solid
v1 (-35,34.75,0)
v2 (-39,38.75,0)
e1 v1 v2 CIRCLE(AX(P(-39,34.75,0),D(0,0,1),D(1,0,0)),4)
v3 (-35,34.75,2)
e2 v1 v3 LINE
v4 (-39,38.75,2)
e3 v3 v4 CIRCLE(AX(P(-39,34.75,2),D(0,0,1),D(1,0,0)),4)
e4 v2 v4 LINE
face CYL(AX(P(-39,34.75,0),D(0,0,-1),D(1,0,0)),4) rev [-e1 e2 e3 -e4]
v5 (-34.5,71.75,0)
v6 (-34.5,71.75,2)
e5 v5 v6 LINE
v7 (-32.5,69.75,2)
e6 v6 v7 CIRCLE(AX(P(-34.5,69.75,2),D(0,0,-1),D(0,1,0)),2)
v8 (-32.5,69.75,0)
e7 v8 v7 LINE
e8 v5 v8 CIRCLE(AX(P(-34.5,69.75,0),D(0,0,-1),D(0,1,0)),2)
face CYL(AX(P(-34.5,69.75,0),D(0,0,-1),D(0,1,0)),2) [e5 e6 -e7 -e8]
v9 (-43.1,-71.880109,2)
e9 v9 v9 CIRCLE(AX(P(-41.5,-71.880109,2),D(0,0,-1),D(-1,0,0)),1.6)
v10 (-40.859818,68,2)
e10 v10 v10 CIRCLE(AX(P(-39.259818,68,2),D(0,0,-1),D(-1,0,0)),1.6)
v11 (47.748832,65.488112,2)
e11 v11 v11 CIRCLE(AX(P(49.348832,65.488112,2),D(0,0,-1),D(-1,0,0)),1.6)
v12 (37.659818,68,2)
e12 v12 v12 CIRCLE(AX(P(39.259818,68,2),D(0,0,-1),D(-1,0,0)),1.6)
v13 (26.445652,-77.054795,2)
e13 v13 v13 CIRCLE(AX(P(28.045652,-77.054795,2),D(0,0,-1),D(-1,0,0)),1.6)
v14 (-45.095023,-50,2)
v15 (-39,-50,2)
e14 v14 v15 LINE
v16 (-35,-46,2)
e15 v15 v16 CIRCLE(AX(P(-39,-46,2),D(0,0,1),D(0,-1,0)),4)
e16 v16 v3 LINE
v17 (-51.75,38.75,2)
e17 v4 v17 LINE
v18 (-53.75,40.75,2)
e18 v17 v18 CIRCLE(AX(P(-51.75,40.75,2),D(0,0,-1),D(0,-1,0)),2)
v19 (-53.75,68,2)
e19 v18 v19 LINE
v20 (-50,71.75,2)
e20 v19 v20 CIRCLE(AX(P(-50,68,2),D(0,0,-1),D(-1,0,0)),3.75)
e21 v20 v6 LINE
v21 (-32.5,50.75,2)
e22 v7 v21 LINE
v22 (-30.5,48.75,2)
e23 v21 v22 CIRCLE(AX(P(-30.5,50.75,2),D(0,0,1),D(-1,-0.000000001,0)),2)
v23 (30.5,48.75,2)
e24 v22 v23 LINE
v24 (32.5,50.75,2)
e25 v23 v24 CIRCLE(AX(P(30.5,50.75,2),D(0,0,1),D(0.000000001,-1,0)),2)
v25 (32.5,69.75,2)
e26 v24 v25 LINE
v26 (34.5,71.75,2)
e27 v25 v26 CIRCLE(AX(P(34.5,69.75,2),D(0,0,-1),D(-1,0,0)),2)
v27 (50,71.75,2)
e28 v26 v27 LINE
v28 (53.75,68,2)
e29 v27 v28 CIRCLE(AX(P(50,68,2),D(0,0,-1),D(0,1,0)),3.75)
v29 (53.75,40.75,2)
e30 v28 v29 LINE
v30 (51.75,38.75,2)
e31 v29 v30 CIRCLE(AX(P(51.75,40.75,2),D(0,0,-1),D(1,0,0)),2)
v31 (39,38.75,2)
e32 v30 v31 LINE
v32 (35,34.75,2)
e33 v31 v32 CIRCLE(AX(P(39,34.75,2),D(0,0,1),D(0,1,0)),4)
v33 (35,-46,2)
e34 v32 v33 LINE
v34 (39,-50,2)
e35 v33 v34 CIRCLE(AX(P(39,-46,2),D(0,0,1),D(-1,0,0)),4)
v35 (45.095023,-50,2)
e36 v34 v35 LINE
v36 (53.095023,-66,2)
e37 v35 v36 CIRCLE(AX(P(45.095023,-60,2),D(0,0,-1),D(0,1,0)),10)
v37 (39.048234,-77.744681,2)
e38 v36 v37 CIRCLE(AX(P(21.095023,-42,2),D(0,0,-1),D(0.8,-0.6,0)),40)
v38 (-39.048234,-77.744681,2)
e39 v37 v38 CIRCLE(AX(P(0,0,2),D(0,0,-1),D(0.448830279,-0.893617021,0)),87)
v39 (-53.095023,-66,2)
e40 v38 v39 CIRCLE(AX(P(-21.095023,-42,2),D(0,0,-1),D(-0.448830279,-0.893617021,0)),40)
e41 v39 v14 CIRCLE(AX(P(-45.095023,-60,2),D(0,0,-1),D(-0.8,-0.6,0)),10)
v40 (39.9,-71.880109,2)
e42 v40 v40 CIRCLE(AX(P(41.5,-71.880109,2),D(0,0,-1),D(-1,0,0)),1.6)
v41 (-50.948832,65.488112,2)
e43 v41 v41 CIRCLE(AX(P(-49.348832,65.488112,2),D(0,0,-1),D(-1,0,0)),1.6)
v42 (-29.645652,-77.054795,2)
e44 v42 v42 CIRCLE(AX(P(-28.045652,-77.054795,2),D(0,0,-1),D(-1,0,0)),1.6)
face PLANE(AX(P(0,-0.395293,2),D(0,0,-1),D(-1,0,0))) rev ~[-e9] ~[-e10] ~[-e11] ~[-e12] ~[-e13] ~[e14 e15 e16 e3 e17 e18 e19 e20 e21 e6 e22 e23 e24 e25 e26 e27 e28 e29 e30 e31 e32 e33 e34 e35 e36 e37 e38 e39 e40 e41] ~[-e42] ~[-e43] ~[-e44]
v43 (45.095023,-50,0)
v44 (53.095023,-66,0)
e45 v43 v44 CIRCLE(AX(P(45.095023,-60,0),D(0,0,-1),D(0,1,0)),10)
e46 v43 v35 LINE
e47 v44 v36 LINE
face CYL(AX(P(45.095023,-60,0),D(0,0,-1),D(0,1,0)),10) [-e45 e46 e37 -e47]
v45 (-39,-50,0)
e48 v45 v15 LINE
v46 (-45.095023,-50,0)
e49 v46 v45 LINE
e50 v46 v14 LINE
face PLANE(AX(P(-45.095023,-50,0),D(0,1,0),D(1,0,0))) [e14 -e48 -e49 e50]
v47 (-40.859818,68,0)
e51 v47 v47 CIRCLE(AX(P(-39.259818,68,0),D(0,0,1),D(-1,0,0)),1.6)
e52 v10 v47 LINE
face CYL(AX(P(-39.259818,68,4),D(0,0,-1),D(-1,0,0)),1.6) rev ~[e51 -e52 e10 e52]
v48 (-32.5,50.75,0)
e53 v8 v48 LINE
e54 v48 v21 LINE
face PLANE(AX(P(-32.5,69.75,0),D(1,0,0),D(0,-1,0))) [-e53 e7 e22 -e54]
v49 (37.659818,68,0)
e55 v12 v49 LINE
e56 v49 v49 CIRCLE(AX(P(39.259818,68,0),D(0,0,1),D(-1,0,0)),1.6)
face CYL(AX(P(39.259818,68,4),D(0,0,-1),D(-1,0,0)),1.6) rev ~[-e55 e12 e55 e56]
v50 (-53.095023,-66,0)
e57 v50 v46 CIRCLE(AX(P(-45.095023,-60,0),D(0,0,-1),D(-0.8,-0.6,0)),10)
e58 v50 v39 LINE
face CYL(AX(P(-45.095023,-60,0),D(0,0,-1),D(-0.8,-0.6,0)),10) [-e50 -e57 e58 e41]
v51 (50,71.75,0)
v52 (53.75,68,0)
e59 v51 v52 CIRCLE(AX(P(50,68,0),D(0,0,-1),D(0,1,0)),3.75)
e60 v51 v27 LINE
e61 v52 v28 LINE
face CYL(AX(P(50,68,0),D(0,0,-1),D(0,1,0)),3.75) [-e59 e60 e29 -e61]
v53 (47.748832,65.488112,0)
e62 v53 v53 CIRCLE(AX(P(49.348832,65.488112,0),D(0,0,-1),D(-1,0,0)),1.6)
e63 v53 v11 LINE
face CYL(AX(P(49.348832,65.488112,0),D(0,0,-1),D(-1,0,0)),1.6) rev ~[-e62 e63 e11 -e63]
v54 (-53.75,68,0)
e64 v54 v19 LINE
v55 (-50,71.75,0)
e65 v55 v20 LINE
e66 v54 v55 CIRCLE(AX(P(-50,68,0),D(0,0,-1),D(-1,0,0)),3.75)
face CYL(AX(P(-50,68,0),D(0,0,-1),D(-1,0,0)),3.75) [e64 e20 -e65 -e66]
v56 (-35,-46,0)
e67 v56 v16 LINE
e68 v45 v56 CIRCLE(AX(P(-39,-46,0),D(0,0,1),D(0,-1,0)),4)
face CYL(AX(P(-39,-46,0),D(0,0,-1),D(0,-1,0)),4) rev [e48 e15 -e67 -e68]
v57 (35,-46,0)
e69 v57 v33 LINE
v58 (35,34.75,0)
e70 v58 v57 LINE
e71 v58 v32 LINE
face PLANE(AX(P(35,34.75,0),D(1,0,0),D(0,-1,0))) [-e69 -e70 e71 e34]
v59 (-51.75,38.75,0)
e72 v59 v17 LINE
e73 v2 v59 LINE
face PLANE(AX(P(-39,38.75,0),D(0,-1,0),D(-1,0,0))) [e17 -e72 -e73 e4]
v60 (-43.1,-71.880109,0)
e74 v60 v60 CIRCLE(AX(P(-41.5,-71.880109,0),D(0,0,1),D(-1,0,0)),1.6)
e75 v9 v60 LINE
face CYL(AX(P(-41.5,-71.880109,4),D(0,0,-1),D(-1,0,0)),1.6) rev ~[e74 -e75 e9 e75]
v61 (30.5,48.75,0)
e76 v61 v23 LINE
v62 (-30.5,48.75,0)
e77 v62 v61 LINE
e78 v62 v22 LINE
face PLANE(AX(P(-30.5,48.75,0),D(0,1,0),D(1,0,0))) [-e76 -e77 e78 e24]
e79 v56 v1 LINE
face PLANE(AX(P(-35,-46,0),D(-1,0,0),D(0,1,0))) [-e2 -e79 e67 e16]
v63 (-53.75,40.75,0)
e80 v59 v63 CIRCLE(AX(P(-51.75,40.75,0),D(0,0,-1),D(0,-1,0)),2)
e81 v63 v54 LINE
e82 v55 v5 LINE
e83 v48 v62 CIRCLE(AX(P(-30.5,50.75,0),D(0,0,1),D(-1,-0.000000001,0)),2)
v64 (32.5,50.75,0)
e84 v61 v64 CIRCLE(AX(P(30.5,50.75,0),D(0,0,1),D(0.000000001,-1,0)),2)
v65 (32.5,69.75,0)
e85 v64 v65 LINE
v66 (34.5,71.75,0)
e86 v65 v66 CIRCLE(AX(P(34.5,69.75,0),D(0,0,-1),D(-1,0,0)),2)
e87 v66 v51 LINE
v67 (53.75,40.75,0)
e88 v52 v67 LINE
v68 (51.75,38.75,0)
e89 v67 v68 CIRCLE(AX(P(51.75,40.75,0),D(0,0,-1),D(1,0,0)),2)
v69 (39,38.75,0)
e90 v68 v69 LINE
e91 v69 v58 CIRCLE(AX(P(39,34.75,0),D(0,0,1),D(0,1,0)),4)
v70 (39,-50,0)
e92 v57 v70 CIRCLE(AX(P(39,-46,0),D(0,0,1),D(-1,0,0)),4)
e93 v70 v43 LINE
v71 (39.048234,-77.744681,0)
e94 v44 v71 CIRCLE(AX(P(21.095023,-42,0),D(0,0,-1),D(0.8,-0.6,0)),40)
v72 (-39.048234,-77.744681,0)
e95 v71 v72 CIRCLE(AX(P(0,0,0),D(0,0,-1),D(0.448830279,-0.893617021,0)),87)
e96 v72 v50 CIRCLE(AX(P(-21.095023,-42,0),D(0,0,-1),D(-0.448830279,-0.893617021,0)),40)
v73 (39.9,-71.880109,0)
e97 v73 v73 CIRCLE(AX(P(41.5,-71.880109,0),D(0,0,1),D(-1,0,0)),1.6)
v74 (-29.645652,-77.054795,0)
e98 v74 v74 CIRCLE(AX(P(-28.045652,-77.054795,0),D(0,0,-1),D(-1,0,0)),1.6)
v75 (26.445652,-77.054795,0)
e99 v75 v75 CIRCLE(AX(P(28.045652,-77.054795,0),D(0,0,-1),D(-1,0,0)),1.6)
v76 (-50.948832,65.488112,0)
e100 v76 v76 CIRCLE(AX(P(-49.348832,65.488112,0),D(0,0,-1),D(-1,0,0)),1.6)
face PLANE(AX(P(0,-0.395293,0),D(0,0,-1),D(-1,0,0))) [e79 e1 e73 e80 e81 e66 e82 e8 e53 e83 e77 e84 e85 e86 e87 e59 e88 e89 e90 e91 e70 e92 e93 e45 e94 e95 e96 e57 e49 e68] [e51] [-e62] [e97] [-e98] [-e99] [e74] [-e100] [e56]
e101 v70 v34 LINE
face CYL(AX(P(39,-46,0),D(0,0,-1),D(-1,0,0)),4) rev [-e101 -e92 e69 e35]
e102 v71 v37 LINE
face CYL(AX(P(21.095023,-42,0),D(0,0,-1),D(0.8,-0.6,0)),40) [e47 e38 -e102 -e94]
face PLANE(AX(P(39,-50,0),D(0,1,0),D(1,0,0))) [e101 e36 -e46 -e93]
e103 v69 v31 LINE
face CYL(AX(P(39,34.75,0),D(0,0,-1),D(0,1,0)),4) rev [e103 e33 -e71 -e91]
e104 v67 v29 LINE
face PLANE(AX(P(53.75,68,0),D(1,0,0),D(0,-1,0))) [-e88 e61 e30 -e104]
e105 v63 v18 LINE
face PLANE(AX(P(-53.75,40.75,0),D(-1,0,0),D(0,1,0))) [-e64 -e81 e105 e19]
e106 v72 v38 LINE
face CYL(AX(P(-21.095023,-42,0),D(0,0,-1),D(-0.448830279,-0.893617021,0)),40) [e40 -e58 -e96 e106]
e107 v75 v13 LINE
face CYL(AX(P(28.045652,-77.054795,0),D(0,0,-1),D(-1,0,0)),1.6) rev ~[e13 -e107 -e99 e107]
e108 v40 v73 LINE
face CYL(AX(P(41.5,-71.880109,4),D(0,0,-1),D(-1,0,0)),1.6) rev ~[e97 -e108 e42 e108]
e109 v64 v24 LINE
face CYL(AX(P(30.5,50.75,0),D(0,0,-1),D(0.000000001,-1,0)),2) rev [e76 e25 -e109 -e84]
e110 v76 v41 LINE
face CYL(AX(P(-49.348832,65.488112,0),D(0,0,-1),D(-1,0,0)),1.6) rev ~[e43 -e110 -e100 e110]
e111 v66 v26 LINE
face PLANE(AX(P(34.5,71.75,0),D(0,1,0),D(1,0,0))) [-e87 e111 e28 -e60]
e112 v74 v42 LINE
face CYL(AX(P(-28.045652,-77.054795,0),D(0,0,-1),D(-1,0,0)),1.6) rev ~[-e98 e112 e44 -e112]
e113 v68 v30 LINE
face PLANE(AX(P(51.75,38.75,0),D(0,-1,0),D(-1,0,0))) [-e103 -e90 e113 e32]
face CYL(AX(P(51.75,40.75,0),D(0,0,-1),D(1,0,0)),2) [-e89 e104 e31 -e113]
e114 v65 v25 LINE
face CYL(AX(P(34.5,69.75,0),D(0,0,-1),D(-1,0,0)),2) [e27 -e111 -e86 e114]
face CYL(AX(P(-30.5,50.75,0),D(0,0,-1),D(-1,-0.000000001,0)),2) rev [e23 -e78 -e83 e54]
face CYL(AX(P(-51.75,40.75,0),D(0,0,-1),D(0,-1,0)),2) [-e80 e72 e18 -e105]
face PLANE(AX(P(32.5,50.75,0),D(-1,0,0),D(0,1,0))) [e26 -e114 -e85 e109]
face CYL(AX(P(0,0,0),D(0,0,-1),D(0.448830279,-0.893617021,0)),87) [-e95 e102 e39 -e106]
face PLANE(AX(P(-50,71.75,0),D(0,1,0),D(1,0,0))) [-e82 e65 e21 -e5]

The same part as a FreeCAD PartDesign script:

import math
import FreeCAD as App
import Part
import Sketcher
Q = App.Units.Quantity

doc = App.newDocument("Part")
body = doc.addObject("PartDesign::Body", "Body")

# Sketch on XY plane
sketch1 = doc.addObject("Sketcher::SketchObject", "Sketch")
body.addObject(sketch1)
sketch1.AttachmentSupport = (doc.XY_Plane, [""])
sketch1.MapMode = "FlatFace"
sketch1.addGeometry(Part.LineSegment(App.Vector(-50, 71.7, 0), App.Vector(-34.5, 71.7, 0)), False)
sketch1.addGeometry(Part.ArcOfCircle(Part.Circle(App.Vector(-34.5, 69.7, 0), App.Vector(0, 0, 1), 2), math.radians(0), math.radians(90)), False)
sketch1.addGeometry(Part.LineSegment(App.Vector(-32.5, 69.7, 0), App.Vector(-32.5, 50.7, 0)), False)
sketch1.addGeometry(Part.ArcOfCircle(Part.Circle(App.Vector(-30.5, 50.7, 0), App.Vector(0, 0, 1), 2), math.radians(-180), math.radians(-90)), False)
sketch1.addGeometry(Part.LineSegment(App.Vector(-30.5, 48.8, 0), App.Vector(30.5, 48.8, 0)), False)
sketch1.addGeometry(Part.ArcOfCircle(Part.Circle(App.Vector(30.5, 50.7, 0), App.Vector(0, 0, 1), 2), math.radians(-90), math.radians(0)), False)
sketch1.addGeometry(Part.LineSegment(App.Vector(32.5, 50.7, 0), App.Vector(32.5, 69.7, 0)), False)
sketch1.addGeometry(Part.ArcOfCircle(Part.Circle(App.Vector(34.5, 69.7, 0), App.Vector(0, 0, 1), 2), math.radians(90), math.radians(180)), False)
sketch1.addGeometry(Part.LineSegment(App.Vector(34.5, 71.7, 0), App.Vector(50, 71.7, 0)), False)
sketch1.addGeometry(Part.ArcOfCircle(Part.Circle(App.Vector(50, 68, 0), App.Vector(0, 0, 1), 3.7), math.radians(0), math.radians(90)), False)
sketch1.addGeometry(Part.LineSegment(App.Vector(53.8, 68, 0), App.Vector(53.8, 40.7, 0)), False)
sketch1.addGeometry(Part.ArcOfCircle(Part.Circle(App.Vector(51.8, 40.7, 0), App.Vector(0, 0, 1), 2), math.radians(-90), math.radians(0)), False)
sketch1.addGeometry(Part.LineSegment(App.Vector(51.8, 38.8, 0), App.Vector(39, 38.8, 0)), False)
sketch1.addGeometry(Part.ArcOfCircle(Part.Circle(App.Vector(39, 34.7, 0), App.Vector(0, 0, 1), 4), math.radians(90), math.radians(180)), False)
sketch1.addGeometry(Part.LineSegment(App.Vector(35, 34.8, 0), App.Vector(35, -46, 0)), False)
sketch1.addGeometry(Part.ArcOfCircle(Part.Circle(App.Vector(39, -46, 0), App.Vector(0, 0, 1), 4), math.radians(180), math.radians(270)), False)
sketch1.addGeometry(Part.LineSegment(App.Vector(39, -50, 0), App.Vector(45.1, -50, 0)), False)
sketch1.addGeometry(Part.ArcOfCircle(Part.Circle(App.Vector(45.1, -60, 0), App.Vector(0, 0, 1), 10), math.radians(-37), math.radians(90)), False)
sketch1.addGeometry(Part.ArcOfCircle(Part.Circle(App.Vector(21.1, -42, 0), App.Vector(0, 0, 1), 40), math.radians(-63), math.radians(-37)), False)
sketch1.addGeometry(Part.ArcOfCircle(Part.Circle(App.Vector(0, 0, 0), App.Vector(0, 0, 1), 87), math.radians(-117), math.radians(-63)), False)
sketch1.addGeometry(Part.ArcOfCircle(Part.Circle(App.Vector(-21.1, -42, 0), App.Vector(0, 0, 1), 40), math.radians(-143), math.radians(-117)), False)
sketch1.addGeometry(Part.ArcOfCircle(Part.Circle(App.Vector(-45.1, -60, 0), App.Vector(0, 0, 1), 10), math.radians(90), math.radians(217)), False)
sketch1.addGeometry(Part.LineSegment(App.Vector(-45.1, -50, 0), App.Vector(-39, -50, 0)), False)
sketch1.addGeometry(Part.ArcOfCircle(Part.Circle(App.Vector(-39, -46, 0), App.Vector(0, 0, 1), 4), math.radians(-90), math.radians(0)), False)
sketch1.addGeometry(Part.LineSegment(App.Vector(-35, -46, 0), App.Vector(-35, 34.8, 0)), False)
sketch1.addGeometry(Part.ArcOfCircle(Part.Circle(App.Vector(-39, 34.7, 0), App.Vector(0, 0, 1), 4), math.radians(0), math.radians(90)), False)
sketch1.addGeometry(Part.LineSegment(App.Vector(-39, 38.8, 0), App.Vector(-51.8, 38.8, 0)), False)
sketch1.addGeometry(Part.ArcOfCircle(Part.Circle(App.Vector(-51.8, 40.7, 0), App.Vector(0, 0, 1), 2), math.radians(-180), math.radians(-90)), False)
sketch1.addGeometry(Part.LineSegment(App.Vector(-53.7, 40.7, 0), App.Vector(-53.7, 68, 0)), False)
sketch1.addGeometry(Part.ArcOfCircle(Part.Circle(App.Vector(-50, 68, 0), App.Vector(0, 0, 1), 3.7), math.radians(90), math.radians(180)), False)
sketch1.addGeometry(Part.Circle(App.Vector(28, -77.1, 0), App.Vector(0, 0, 1), 1.6), False)
sketch1.addGeometry(Part.Circle(App.Vector(-28, -77.1, 0), App.Vector(0, 0, 1), 1.6), False)
sketch1.addGeometry(Part.Circle(App.Vector(49.3, 65.5, 0), App.Vector(0, 0, 1), 1.6), False)
sketch1.addGeometry(Part.Circle(App.Vector(-49.3, 65.5, 0), App.Vector(0, 0, 1), 1.6), False)
sketch1.addConstraint(Sketcher.Constraint("Tangent", 0, 2, 1, 2))
sketch1.addConstraint(Sketcher.Constraint("Tangent", 1, 1, 2, 1))
sketch1.addConstraint(Sketcher.Constraint("Tangent", 2, 2, 3, 1))
sketch1.addConstraint(Sketcher.Constraint("Tangent", 3, 2, 4, 1))
sketch1.addConstraint(Sketcher.Constraint("Tangent", 4, 2, 5, 1))
sketch1.addConstraint(Sketcher.Constraint("Tangent", 5, 2, 6, 1))
sketch1.addConstraint(Sketcher.Constraint("Tangent", 6, 2, 7, 2))
sketch1.addConstraint(Sketcher.Constraint("Tangent", 7, 1, 8, 1))
sketch1.addConstraint(Sketcher.Constraint("Tangent", 8, 2, 9, 2))
sketch1.addConstraint(Sketcher.Constraint("Tangent", 9, 1, 10, 1))
sketch1.addConstraint(Sketcher.Constraint("Tangent", 10, 2, 11, 2))
sketch1.addConstraint(Sketcher.Constraint("Tangent", 11, 1, 12, 1))
sketch1.addConstraint(Sketcher.Constraint("Tangent", 12, 2, 13, 1))
sketch1.addConstraint(Sketcher.Constraint("Tangent", 13, 2, 14, 1))
sketch1.addConstraint(Sketcher.Constraint("Tangent", 14, 2, 15, 1))
sketch1.addConstraint(Sketcher.Constraint("Tangent", 15, 2, 16, 1))
sketch1.addConstraint(Sketcher.Constraint("Tangent", 16, 2, 17, 2))
sketch1.addConstraint(Sketcher.Constraint("Tangent", 17, 1, 18, 2))
sketch1.addConstraint(Sketcher.Constraint("Tangent", 18, 1, 19, 2))
sketch1.addConstraint(Sketcher.Constraint("Tangent", 19, 1, 20, 2))
sketch1.addConstraint(Sketcher.Constraint("Tangent", 20, 1, 21, 2))
sketch1.addConstraint(Sketcher.Constraint("Tangent", 21, 1, 22, 1))
sketch1.addConstraint(Sketcher.Constraint("Tangent", 22, 2, 23, 1))
sketch1.addConstraint(Sketcher.Constraint("Tangent", 23, 2, 24, 1))
sketch1.addConstraint(Sketcher.Constraint("Tangent", 24, 2, 25, 1))
sketch1.addConstraint(Sketcher.Constraint("Tangent", 25, 2, 26, 1))
sketch1.addConstraint(Sketcher.Constraint("Tangent", 26, 2, 27, 2))
sketch1.addConstraint(Sketcher.Constraint("Tangent", 27, 1, 28, 1))
sketch1.addConstraint(Sketcher.Constraint("Tangent", 28, 2, 29, 2))
sketch1.addConstraint(Sketcher.Constraint("Tangent", 29, 1, 0, 1))
sketch1.addConstraint(Sketcher.Constraint("Horizontal", 0))
sketch1.addConstraint(Sketcher.Constraint("Vertical", 2))
sketch1.addConstraint(Sketcher.Constraint("Horizontal", 4))
sketch1.addConstraint(Sketcher.Constraint("Vertical", 6))
sketch1.addConstraint(Sketcher.Constraint("Horizontal", 8))
sketch1.addConstraint(Sketcher.Constraint("Vertical", 10))
sketch1.addConstraint(Sketcher.Constraint("Horizontal", 12))
sketch1.addConstraint(Sketcher.Constraint("Vertical", 14))
sketch1.addConstraint(Sketcher.Constraint("Horizontal", 16))
sketch1.addConstraint(Sketcher.Constraint("Horizontal", 22))
sketch1.addConstraint(Sketcher.Constraint("Vertical", 24))
sketch1.addConstraint(Sketcher.Constraint("Horizontal", 26))
sketch1.addConstraint(Sketcher.Constraint("Vertical", 28))
sketch1.addConstraint(Sketcher.Constraint("Coincident", 19, 3, -1, 1))
sketch1.addConstraint(Sketcher.Constraint("Equal", 1, 3))
sketch1.addConstraint(Sketcher.Constraint("Equal", 3, 5))
sketch1.addConstraint(Sketcher.Constraint("Equal", 5, 7))
sketch1.addConstraint(Sketcher.Constraint("Equal", 7, 11))
sketch1.addConstraint(Sketcher.Constraint("Equal", 13, 15))
sketch1.addConstraint(Sketcher.Constraint("Equal", 18, 20))
sketch1.addConstraint(Sketcher.Constraint("Equal", 17, 21))
sketch1.addConstraint(Sketcher.Constraint("Equal", 15, 23))
sketch1.addConstraint(Sketcher.Constraint("Equal", 23, 25))
sketch1.addConstraint(Sketcher.Constraint("Equal", 11, 27))
sketch1.addConstraint(Sketcher.Constraint("Equal", 9, 29))
sketch1.addConstraint(Sketcher.Constraint("Equal", 30, 31))
sketch1.addConstraint(Sketcher.Constraint("Equal", 31, 32))
sketch1.addConstraint(Sketcher.Constraint("Equal", 32, 33))
sketch1.addConstraint(Sketcher.Constraint("Symmetric", 1, 3, 7, 3, -2))
sketch1.addConstraint(Sketcher.Constraint("Symmetric", 17, 3, 21, 3, -2))
sketch1.addConstraint(Sketcher.Constraint("Symmetric", 13, 3, 25, 3, -2))
sketch1.addConstraint(Sketcher.Constraint("Symmetric", 30, 3, 31, 3, -2))
sketch1.addConstraint(Sketcher.Constraint("Symmetric", 32, 3, 33, 3, -2))
sketch1.addConstraint(Sketcher.Constraint("Equal", 0, 8))
sketch1.addConstraint(Sketcher.Constraint("Radius", 1, Q("2 mm")))
sketch1.addConstraint(Sketcher.Constraint("Radius", 13, Q("4 mm")))
sketch1.addConstraint(Sketcher.Constraint("Radius", 17, Q("10 mm")))
sketch1.addConstraint(Sketcher.Constraint("Radius", 18, Q("40 mm")))
sketch1.addConstraint(Sketcher.Constraint("Radius", 19, Q("87 mm")))
sketch1.addConstraint(Sketcher.Constraint("Diameter", 30, Q("3.2 mm")))
sketch1.addConstraint(Sketcher.Constraint("DistanceX", 4, 1, 4, 2, Q("61 mm")))
sketch1.addConstraint(Sketcher.Constraint("DistanceY", 2, 2, 2, 1, Q("19 mm")))
sketch1.addConstraint(Sketcher.Constraint("Radius", 9, Q("3.75 mm")))
sketch1.addConstraint(Sketcher.Constraint("DistanceX", 0, 1, 0, 2, Q("15.5 mm")))
sketch1.addConstraint(Sketcher.Constraint("DistanceY", -1, 1, 9, 3, Q("68 mm")))
sketch1.addConstraint(Sketcher.Constraint("DistanceX", -1, 1, 13, 3, Q("39 mm")))
sketch1.addConstraint(Sketcher.Constraint("DistanceY", 15, 3, -1, 1, Q("46 mm")))
sketch1.addConstraint(Sketcher.Constraint("DistanceY", 18, 3, -1, 1, Q("42 mm")))
sketch1.addConstraint(Sketcher.Constraint("DistanceY", 11, 3, 5, 3, Q("10 mm")))
sketch1.addConstraint(Sketcher.Constraint("DistanceX", -1, 1, 30, 3, Q("28.045652 mm")))
sketch1.addConstraint(Sketcher.Constraint("DistanceX", -1, 1, 32, 3, Q("49.348832 mm")))
sketch1.addConstraint(Sketcher.Constraint("DistanceY", -1, 1, 32, 3, Q("65.488112 mm")))
sketch1.addConstraint(Sketcher.Constraint("DistanceY", 30, 3, -1, 1, Q("77.054795 mm")))
pad1 = doc.addObject("PartDesign::Pad", "Pad")
body.addObject(pad1)
pad1.Profile = sketch1
pad1.Length = 2

# Sketch on XY plane
sketch2 = doc.addObject("Sketcher::SketchObject", "Sketch001")
body.addObject(sketch2)
sketch2.AttachmentSupport = (doc.XY_Plane, [""])
sketch2.MapMode = "FlatFace"
sketch2.AttachmentOffset = App.Placement(App.Vector(0, 0, 2), App.Rotation())
sketch2.addGeometry(Part.Circle(App.Vector(-39.3, 68, 0), App.Vector(0, 0, 1), 1.6), False)
sketch2.addGeometry(Part.Circle(App.Vector(39.3, 68, 0), App.Vector(0, 0, 1), 1.6), False)
sketch2.addGeometry(Part.Circle(App.Vector(41.5, -71.9, 0), App.Vector(0, 0, 1), 1.6), False)
sketch2.addGeometry(Part.Circle(App.Vector(-41.5, -71.9, 0), App.Vector(0, 0, 1), 1.6), False)
sketch2.addConstraint(Sketcher.Constraint("Equal", 0, 1))
sketch2.addConstraint(Sketcher.Constraint("Equal", 1, 2))
sketch2.addConstraint(Sketcher.Constraint("Equal", 2, 3))
sketch2.addConstraint(Sketcher.Constraint("Symmetric", 0, 3, 1, 3, -2))
sketch2.addConstraint(Sketcher.Constraint("Symmetric", 2, 3, 3, 3, -2))
sketch2.addConstraint(Sketcher.Constraint("Diameter", 0, Q("3.2 mm")))
sketch2.addConstraint(Sketcher.Constraint("DistanceY", -1, 1, 0, 3, Q("68 mm")))
sketch2.addConstraint(Sketcher.Constraint("DistanceX", 3, 3, 2, 3, Q("83 mm")))
sketch2.addConstraint(Sketcher.Constraint("DistanceX", 0, 3, -1, 1, Q("39.259818 mm")))
sketch2.addConstraint(Sketcher.Constraint("DistanceY", 2, 3, -1, 1, Q("71.880109 mm")))
doc.recompute()
hole = doc.addObject("PartDesign::Hole", "Hole")
body.addObject(hole)
hole.Profile = sketch2
hole.ThreadType = "None"
hole.Diameter = 3.2
hole.DepthType = "Dimension"
hole.Depth = 2
hole.DrillPoint = "Angled"
hole.DrillPointAngle = 118

doc.recompute()
